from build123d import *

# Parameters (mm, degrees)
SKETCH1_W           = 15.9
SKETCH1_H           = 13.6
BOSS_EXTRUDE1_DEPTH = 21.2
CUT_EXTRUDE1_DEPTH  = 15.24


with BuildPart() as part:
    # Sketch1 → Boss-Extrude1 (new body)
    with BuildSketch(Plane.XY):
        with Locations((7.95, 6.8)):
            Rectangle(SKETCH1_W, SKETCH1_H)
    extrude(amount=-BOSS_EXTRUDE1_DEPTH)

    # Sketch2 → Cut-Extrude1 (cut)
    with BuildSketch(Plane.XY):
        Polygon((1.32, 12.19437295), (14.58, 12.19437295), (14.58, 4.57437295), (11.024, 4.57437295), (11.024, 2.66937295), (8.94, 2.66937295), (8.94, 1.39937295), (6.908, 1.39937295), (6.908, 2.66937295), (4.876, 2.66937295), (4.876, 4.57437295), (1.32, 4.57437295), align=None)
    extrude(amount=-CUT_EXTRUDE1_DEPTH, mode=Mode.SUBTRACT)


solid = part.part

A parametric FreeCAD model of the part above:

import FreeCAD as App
import Part
import Sketcher
from FreeCAD import Vector
Q = App.Units.Quantity

doc = App.newDocument("Part")
body = doc.addObject("PartDesign::Body", "Body")

sketch1 = body.newObject("Sketcher::SketchObject", "Sketch")
sketch1.AttachmentSupport = (doc.getObject("XY_Plane"), [""])
sketch1.MapMode = "FlatFace"
sketch1.addGeometry([
    Part.LineSegment(Vector(0, 13.6, 0), Vector(0, 0, 0)),
    Part.LineSegment(Vector(0, 0, 0), Vector(15.9, 0, 0)),
    Part.LineSegment(Vector(15.9, 0, 0), Vector(15.9, 13.6, 0)),
    Part.LineSegment(Vector(15.9, 13.6, 0), Vector(0, 13.6, 0)),
], False)
sketch1.addConstraint([
    Sketcher.Constraint("Coincident", 0, 2, 1, 1),
    Sketcher.Constraint("Coincident", 1, 2, 2, 1),
    Sketcher.Constraint("Coincident", 2, 2, 3, 1),
    Sketcher.Constraint("Coincident", 3, 2, 0, 1),
    Sketcher.Constraint("Vertical", 0),
    Sketcher.Constraint("Horizontal", 1),
    Sketcher.Constraint("Vertical", 2),
    Sketcher.Constraint("Horizontal", 3),
    Sketcher.Constraint("Coincident", 0, 2, -1, 1),
    Sketcher.Constraint("DistanceX", 1, 1, 1, 2, 15.9),
    Sketcher.Constraint("DistanceY", 0, 2, 0, 1, 13.6),
])
pad1 = body.newObject("PartDesign::Pad", "Pad")
pad1.Profile = sketch1
pad1.Length = 21.2
pad1.Reversed = True

sketch2 = body.newObject("Sketcher::SketchObject", "Sketch001")
sketch2.AttachmentSupport = (doc.getObject("XY_Plane"), [""])
sketch2.MapMode = "FlatFace"
sketch2.addGeometry([
    Part.LineSegment(Vector(14.58, 12.194373, 0), Vector(1.32, 12.194373, 0)),
    Part.LineSegment(Vector(1.32, 12.194373, 0), Vector(1.32, 4.574373, 0)),
    Part.LineSegment(Vector(1.32, 4.574373, 0), Vector(4.876, 4.574373, 0)),
    Part.LineSegment(Vector(4.876, 4.574373, 0), Vector(4.876, 2.669373, 0)),
    Part.LineSegment(Vector(4.876, 2.669373, 0), Vector(6.908, 2.669373, 0)),
    Part.LineSegment(Vector(6.908, 2.669373, 0), Vector(6.908, 1.399373, 0)),
    Part.LineSegment(Vector(6.908, 1.399373, 0), Vector(8.94, 1.399373, 0)),
    Part.LineSegment(Vector(8.94, 1.399373, 0), Vector(8.94, 2.669373, 0)),
    Part.LineSegment(Vector(8.94, 2.669373, 0), Vector(11.024, 2.669373, 0)),
    Part.LineSegment(Vector(11.024, 2.669373, 0), Vector(11.024, 4.574373, 0)),
    Part.LineSegment(Vector(11.024, 4.574373, 0), Vector(14.58, 4.574373, 0)),
    Part.LineSegment(Vector(14.58, 4.574373, 0), Vector(14.58, 12.194373, 0)),
], False)
sketch2.addConstraint([
    Sketcher.Constraint("Coincident", 0, 2, 1, 1),
    Sketcher.Constraint("Coincident", 1, 2, 2, 1),
    Sketcher.Constraint("Coincident", 2, 2, 3, 1),
    Sketcher.Constraint("Coincident", 3, 2, 4, 1),
    Sketcher.Constraint("Coincident", 4, 2, 5, 1),
    Sketcher.Constraint("Coincident", 5, 2, 6, 1),
    Sketcher.Constraint("Coincident", 6, 2, 7, 1),
    Sketcher.Constraint("Coincident", 7, 2, 8, 1),
    Sketcher.Constraint("Coincident", 8, 2, 9, 1),
    Sketcher.Constraint("Coincident", 9, 2, 10, 1),
    Sketcher.Constraint("Coincident", 10, 2, 11, 1),
    Sketcher.Constraint("Coincident", 11, 2, 0, 1),
    Sketcher.Constraint("Horizontal", 0),
    Sketcher.Constraint("Vertical", 1),
    Sketcher.Constraint("Horizontal", 2),
    Sketcher.Constraint("Vertical", 3),
    Sketcher.Constraint("Horizontal", 4),
    Sketcher.Constraint("Vertical", 5),
    Sketcher.Constraint("Horizontal", 6),
    Sketcher.Constraint("Vertical", 7),
    Sketcher.Constraint("Horizontal", 8),
    Sketcher.Constraint("Vertical", 9),
    Sketcher.Constraint("Horizontal", 10),
    Sketcher.Constraint("Vertical", 11),
    Sketcher.Constraint("Horizontal", 4, 2, 7, 2),
    Sketcher.Constraint("Horizontal", 2, 2, 9, 2),
    Sketcher.Constraint("Equal", 4, 6),
    Sketcher.Constraint("Equal", 2, 10),
    Sketcher.Constraint("DistanceY", 1, 2, 1, 1, Q("0.3 in")),
    Sketcher.Constraint("DistanceX", 2, 1, 2, 2, Q("0.14 in")),
    Sketcher.Constraint("DistanceX", 4, 1, 4, 2, Q("0.08 in")),
    Sketcher.Constraint("DistanceY", 5, 2, 5, 1, Q("0.05 in")),
    Sketcher.Constraint("DistanceY", 3, 2, 3, 1, Q("0.075 in")),
    Sketcher.Constraint("DistanceX", 0, 2, 0, 1, 13.26),
    Sketcher.Constraint("DistanceX", -1, 1, 0, 2, 1.32),
    Sketcher.Constraint("DistanceY", -1, 1, 0, 2, 12.194373),
])
pocket1 = body.newObject("PartDesign::Pocket", "Pocket")
pocket1.Profile = sketch2
pocket1.Length = Q("0.6 in")

doc.recompute()
